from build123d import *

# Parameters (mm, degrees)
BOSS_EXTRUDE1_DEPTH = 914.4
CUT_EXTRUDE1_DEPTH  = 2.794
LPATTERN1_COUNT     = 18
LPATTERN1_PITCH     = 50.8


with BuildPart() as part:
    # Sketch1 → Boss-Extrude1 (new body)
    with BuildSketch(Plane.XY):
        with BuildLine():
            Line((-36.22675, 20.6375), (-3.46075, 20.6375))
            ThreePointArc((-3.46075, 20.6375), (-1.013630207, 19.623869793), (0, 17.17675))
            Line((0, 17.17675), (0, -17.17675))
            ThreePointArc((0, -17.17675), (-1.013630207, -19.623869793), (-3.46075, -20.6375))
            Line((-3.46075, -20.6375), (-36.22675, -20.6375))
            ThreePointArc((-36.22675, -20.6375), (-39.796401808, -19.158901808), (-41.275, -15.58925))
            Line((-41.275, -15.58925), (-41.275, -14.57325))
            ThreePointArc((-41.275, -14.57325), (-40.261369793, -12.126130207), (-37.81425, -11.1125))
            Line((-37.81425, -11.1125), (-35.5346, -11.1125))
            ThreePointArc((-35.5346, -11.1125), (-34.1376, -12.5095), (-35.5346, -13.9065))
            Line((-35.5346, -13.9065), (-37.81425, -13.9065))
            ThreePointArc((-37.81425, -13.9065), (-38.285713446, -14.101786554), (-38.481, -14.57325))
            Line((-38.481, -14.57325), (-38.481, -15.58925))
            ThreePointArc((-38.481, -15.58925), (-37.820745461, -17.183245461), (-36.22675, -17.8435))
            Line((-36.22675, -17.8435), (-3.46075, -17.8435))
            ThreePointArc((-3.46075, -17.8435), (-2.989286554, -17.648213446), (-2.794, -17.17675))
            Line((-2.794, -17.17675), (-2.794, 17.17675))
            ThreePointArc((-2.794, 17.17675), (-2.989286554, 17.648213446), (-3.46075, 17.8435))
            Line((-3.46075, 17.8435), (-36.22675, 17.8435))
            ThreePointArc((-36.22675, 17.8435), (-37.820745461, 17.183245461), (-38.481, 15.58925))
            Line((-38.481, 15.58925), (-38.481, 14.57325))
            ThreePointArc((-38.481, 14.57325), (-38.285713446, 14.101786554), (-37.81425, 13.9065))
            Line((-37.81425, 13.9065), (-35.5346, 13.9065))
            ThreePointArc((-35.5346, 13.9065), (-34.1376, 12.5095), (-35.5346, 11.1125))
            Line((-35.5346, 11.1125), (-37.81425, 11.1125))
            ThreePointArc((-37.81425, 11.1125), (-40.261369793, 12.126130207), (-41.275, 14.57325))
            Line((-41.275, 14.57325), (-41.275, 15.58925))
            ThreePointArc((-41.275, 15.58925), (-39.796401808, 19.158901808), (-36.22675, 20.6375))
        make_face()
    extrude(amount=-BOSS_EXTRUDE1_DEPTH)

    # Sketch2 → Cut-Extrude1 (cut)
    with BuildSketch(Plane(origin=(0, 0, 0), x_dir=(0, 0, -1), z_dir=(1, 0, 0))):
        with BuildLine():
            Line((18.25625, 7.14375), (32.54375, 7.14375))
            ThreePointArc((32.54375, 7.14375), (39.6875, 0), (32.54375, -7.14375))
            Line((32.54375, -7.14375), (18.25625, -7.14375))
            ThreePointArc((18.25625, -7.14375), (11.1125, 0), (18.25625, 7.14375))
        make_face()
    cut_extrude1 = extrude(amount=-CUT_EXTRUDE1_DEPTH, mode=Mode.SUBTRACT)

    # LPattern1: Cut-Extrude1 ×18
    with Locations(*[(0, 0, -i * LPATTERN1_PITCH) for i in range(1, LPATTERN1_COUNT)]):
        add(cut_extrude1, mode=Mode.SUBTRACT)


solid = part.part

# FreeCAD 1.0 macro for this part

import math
import FreeCAD as App
import Part
import Sketcher

V = App.Vector
Q = App.Units.Quantity

doc = App.newDocument("Part")
body = doc.addObject("PartDesign::Body", "Body")

sketch1 = body.newObject("Sketcher::SketchObject", "Sketch")
sketch1.AttachmentSupport = (doc.getObject("XY_Plane"), [""])
sketch1.MapMode = "FlatFace"
sketch1.addGeometry(Part.LineSegment(V(-3.5, 20.6, 0), V(-36.2, 20.6, 0)), False)
sketch1.addGeometry(Part.ArcOfCircle(Part.Circle(V(-36.2, 15.6, 0), V(0, 0, 1), 5), math.radians(90), math.radians(180)), False)
sketch1.addGeometry(Part.LineSegment(V(-41.3, 15.6, 0), V(-41.3, 14.6, 0)), False)
sketch1.addGeometry(Part.ArcOfCircle(Part.Circle(V(-37.8, 14.6, 0), V(0, 0, 1), 3.5), math.radians(180), math.radians(270)), False)
sketch1.addGeometry(Part.LineSegment(V(-37.8, 11.1, 0), V(-35.5, 11.1, 0)), False)
sketch1.addGeometry(Part.ArcOfCircle(Part.Circle(V(-35.5, 12.5, 0), V(0, 0, 1), 1.4), math.radians(-90), math.radians(90)), False)
sketch1.addGeometry(Part.LineSegment(V(-35.5, 13.9, 0), V(-37.8, 13.9, 0)), False)
sketch1.addGeometry(Part.ArcOfCircle(Part.Circle(V(-37.8, 14.6, 0), V(0, 0, 1), 0.7), math.radians(-180), math.radians(-90)), False)
sketch1.addGeometry(Part.LineSegment(V(-38.5, 14.6, 0), V(-38.5, 15.6, 0)), False)
sketch1.addGeometry(Part.ArcOfCircle(Part.Circle(V(-36.2, 15.6, 0), V(0, 0, 1), 2.3), math.radians(90), math.radians(180)), False)
sketch1.addGeometry(Part.LineSegment(V(-36.2, 17.8, 0), V(-3.5, 17.8, 0)), False)
sketch1.addGeometry(Part.ArcOfCircle(Part.Circle(V(-3.5, 17.2, 0), V(0, 0, 1), 0.7), math.radians(0), math.radians(90)), False)
sketch1.addGeometry(Part.LineSegment(V(-2.8, 17.2, 0), V(-2.8, -17.2, 0)), False)
sketch1.addGeometry(Part.ArcOfCircle(Part.Circle(V(-3.5, -17.2, 0), V(0, 0, 1), 0.7), math.radians(-90), math.radians(0)), False)
sketch1.addGeometry(Part.LineSegment(V(-3.5, -17.8, 0), V(-36.2, -17.8, 0)), False)
sketch1.addGeometry(Part.ArcOfCircle(Part.Circle(V(-36.2, -15.6, 0), V(0, 0, 1), 2.3), math.radians(-180), math.radians(-90)), False)
sketch1.addGeometry(Part.LineSegment(V(-38.5, -15.6, 0), V(-38.5, -14.6, 0)), False)
sketch1.addGeometry(Part.ArcOfCircle(Part.Circle(V(-37.8, -14.6, 0), V(0, 0, 1), 0.7), math.radians(90), math.radians(180)), False)
sketch1.addGeometry(Part.LineSegment(V(-37.8, -13.9, 0), V(-35.5, -13.9, 0)), False)
sketch1.addGeometry(Part.ArcOfCircle(Part.Circle(V(-35.5, -12.5, 0), V(0, 0, 1), 1.4), math.radians(-90), math.radians(90)), False)
sketch1.addGeometry(Part.LineSegment(V(-35.5, -11.1, 0), V(-37.8, -11.1, 0)), False)
sketch1.addGeometry(Part.ArcOfCircle(Part.Circle(V(-37.8, -14.6, 0), V(0, 0, 1), 3.5), math.radians(90), math.radians(180)), False)
sketch1.addGeometry(Part.LineSegment(V(-41.3, -14.6, 0), V(-41.3, -15.6, 0)), False)
sketch1.addGeometry(Part.ArcOfCircle(Part.Circle(V(-36.2, -15.6, 0), V(0, 0, 1), 5), math.radians(180), math.radians(270)), False)
sketch1.addGeometry(Part.LineSegment(V(-36.2, -20.6, 0), V(-3.5, -20.6, 0)), False)
sketch1.addGeometry(Part.ArcOfCircle(Part.Circle(V(-3.5, -17.2, 0), V(0, 0, 1), 3.5), math.radians(-90), math.radians(0)), False)
sketch1.addGeometry(Part.LineSegment(V(0, -17.2, 0), V(0, 17.2, 0)), False)
sketch1.addGeometry(Part.ArcOfCircle(Part.Circle(V(-3.5, 17.2, 0), V(0, 0, 1), 3.5), math.radians(0), math.radians(90)), False)
sketch1.addConstraint(Sketcher.Constraint("Tangent", 0, 2, 1, 1))
sketch1.addConstraint(Sketcher.Constraint("Tangent", 1, 2, 2, 1))
sketch1.addConstraint(Sketcher.Constraint("Tangent", 2, 2, 3, 1))
sketch1.addConstraint(Sketcher.Constraint("Tangent", 3, 2, 4, 1))
sketch1.addConstraint(Sketcher.Constraint("Tangent", 4, 2, 5, 1))
sketch1.addConstraint(Sketcher.Constraint("Tangent", 5, 2, 6, 1))
sketch1.addConstraint(Sketcher.Constraint("Tangent", 6, 2, 7, 2))
sketch1.addConstraint(Sketcher.Constraint("Tangent", 7, 1, 8, 1))
sketch1.addConstraint(Sketcher.Constraint("Tangent", 8, 2, 9, 2))
sketch1.addConstraint(Sketcher.Constraint("Tangent", 9, 1, 10, 1))
sketch1.addConstraint(Sketcher.Constraint("Tangent", 10, 2, 11, 2))
sketch1.addConstraint(Sketcher.Constraint("Tangent", 11, 1, 12, 1))
sketch1.addConstraint(Sketcher.Constraint("Tangent", 12, 2, 13, 2))
sketch1.addConstraint(Sketcher.Constraint("Tangent", 13, 1, 14, 1))
sketch1.addConstraint(Sketcher.Constraint("Tangent", 14, 2, 15, 2))
sketch1.addConstraint(Sketcher.Constraint("Tangent", 15, 1, 16, 1))
sketch1.addConstraint(Sketcher.Constraint("Tangent", 16, 2, 17, 2))
sketch1.addConstraint(Sketcher.Constraint("Tangent", 17, 1, 18, 1))
sketch1.addConstraint(Sketcher.Constraint("Tangent", 18, 2, 19, 1))
sketch1.addConstraint(Sketcher.Constraint("Tangent", 19, 2, 20, 1))
sketch1.addConstraint(Sketcher.Constraint("Tangent", 20, 2, 21, 1))
sketch1.addConstraint(Sketcher.Constraint("Tangent", 21, 2, 22, 1))
sketch1.addConstraint(Sketcher.Constraint("Tangent", 22, 2, 23, 1))
sketch1.addConstraint(Sketcher.Constraint("Tangent", 23, 2, 24, 1))
sketch1.addConstraint(Sketcher.Constraint("Tangent", 24, 2, 25, 1))
sketch1.addConstraint(Sketcher.Constraint("Tangent", 25, 2, 26, 1))
sketch1.addConstraint(Sketcher.Constraint("Tangent", 26, 2, 27, 1))
sketch1.addConstraint(Sketcher.Constraint("Tangent", 27, 2, 0, 1))
sketch1.addConstraint(Sketcher.Constraint("Horizontal", 0))
sketch1.addConstraint(Sketcher.Constraint("Vertical", 2))
sketch1.addConstraint(Sketcher.Constraint("Horizontal", 4))
sketch1.addConstraint(Sketcher.Constraint("Horizontal", 6))
sketch1.addConstraint(Sketcher.Constraint("Vertical", 8))
sketch1.addConstraint(Sketcher.Constraint("Horizontal", 10))
sketch1.addConstraint(Sketcher.Constraint("Vertical", 12))
sketch1.addConstraint(Sketcher.Constraint("Horizontal", 14))
sketch1.addConstraint(Sketcher.Constraint("Vertical", 16))
sketch1.addConstraint(Sketcher.Constraint("Horizontal", 18))
sketch1.addConstraint(Sketcher.Constraint("Horizontal", 20))
sketch1.addConstraint(Sketcher.Constraint("Vertical", 22))
sketch1.addConstraint(Sketcher.Constraint("Horizontal", 24))
sketch1.addConstraint(Sketcher.Constraint("Vertical", 26))
sketch1.addConstraint(Sketcher.Constraint("Coincident", 7, 3, 3, 3))
sketch1.addConstraint(Sketcher.Constraint("Coincident", 9, 3, 1, 3))
sketch1.addConstraint(Sketcher.Constraint("Coincident", 21, 3, 17, 3))
sketch1.addConstraint(Sketcher.Constraint("Coincident", 23, 3, 15, 3))
sketch1.addConstraint(Sketcher.Constraint("Coincident", 25, 3, 13, 3))
sketch1.addConstraint(Sketcher.Constraint("Coincident", 27, 3, 11, 3))
sketch1.addConstraint(Sketcher.Constraint("Equal", 7, 11))
sketch1.addConstraint(Sketcher.Constraint("Equal", 11, 13))
sketch1.addConstraint(Sketcher.Constraint("Equal", 9, 15))
sketch1.addConstraint(Sketcher.Constraint("Equal", 13, 17))
sketch1.addConstraint(Sketcher.Constraint("Symmetric", 25, 2, 26, 2, -1, 1))
sketch1.addConstraint(Sketcher.Constraint("Symmetric", 3, 3, 17, 3, -1))
sketch1.addConstraint(Sketcher.Constraint("Vertical", 5, 3, 19, 3))
sketch1.addConstraint(Sketcher.Constraint("Radius", 5, Q("0.055 in")))
sketch1.addConstraint(Sketcher.Constraint("DistanceX", 0, 2, 0, 1, Q("1.29 in")))
sketch1.addConstraint(Sketcher.Constraint("DistanceY", 2, 2, 2, 1, Q("0.04 in")))
sketch1.addConstraint(Sketcher.Constraint("DistanceY", 13, 3, 9, 3, Q("1.29 in")))
sketch1.addConstraint(Sketcher.Constraint("DistanceY", 5, 3, 0, 2, Q("0.32 in")))
sketch1.addConstraint(Sketcher.Constraint("DistanceY", 12, 2, 12, 1, Q("1.3525 in")))
sketch1.addConstraint(Sketcher.Constraint("DistanceX", 5, 3, -1, 1, Q("1.399 in")))
pad1 = body.newObject("PartDesign::Pad", "Pad")
pad1.Profile = sketch1
pad1.Length = Q("36 in")
pad1.Reversed = True

sketch2 = body.newObject("Sketcher::SketchObject", "Sketch001")
sketch2.AttachmentSupport = (doc.getObject("YZ_Plane"), [""])
sketch2.MapMode = "FlatFace"
sketch2.addGeometry(Part.LineSegment(V(7, -33, 0), V(7, -18, 0)), False)
sketch2.addGeometry(Part.ArcOfCircle(Part.Circle(V(0, -18, 0), V(0, 0, 1), 7), math.radians(0), math.radians(180)), False)
sketch2.addGeometry(Part.LineSegment(V(-7, -18, 0), V(-7, -33, 0)), False)
sketch2.addGeometry(Part.ArcOfCircle(Part.Circle(V(0, -33, 0), V(0, 0, 1), 7), math.radians(180), math.radians(360)), False)
sketch2.addConstraint(Sketcher.Constraint("Tangent", 0, 2, 1, 1))
sketch2.addConstraint(Sketcher.Constraint("Tangent", 1, 2, 2, 1))
sketch2.addConstraint(Sketcher.Constraint("Tangent", 2, 2, 3, 1))
sketch2.addConstraint(Sketcher.Constraint("Tangent", 3, 2, 0, 1))
sketch2.addConstraint(Sketcher.Constraint("Vertical", 0))
sketch2.addConstraint(Sketcher.Constraint("Vertical", 2))
sketch2.addConstraint(Sketcher.Constraint("PointOnObject", 1, 3, -2))
sketch2.addConstraint(Sketcher.Constraint("Radius", 1, Q("0.28125 in")))
sketch2.addConstraint(Sketcher.Constraint("DistanceY", 0, 1, 0, 2, Q("0.5625 in")))
sketch2.addConstraint(Sketcher.Constraint("DistanceY", 1, 3, -1, 1, Q("0.71875 in")))
pocket1 = body.newObject("PartDesign::Pocket", "Pocket")
pocket1.Profile = sketch2
pocket1.Length = Q("0.11 in")
doc.recompute()

linearpattern = body.newObject("PartDesign::LinearPattern", "LinearPattern")
linearpattern.Originals = [pocket1]
linearpattern.Direction = (doc.getObject("Z_Axis"), [""])
linearpattern.Mode = "offset"
linearpattern.Offset = Q("2 in")
linearpattern.Occurrences = 18
linearpattern.Reversed = True
body.Tip = linearpattern

doc.recompute()
